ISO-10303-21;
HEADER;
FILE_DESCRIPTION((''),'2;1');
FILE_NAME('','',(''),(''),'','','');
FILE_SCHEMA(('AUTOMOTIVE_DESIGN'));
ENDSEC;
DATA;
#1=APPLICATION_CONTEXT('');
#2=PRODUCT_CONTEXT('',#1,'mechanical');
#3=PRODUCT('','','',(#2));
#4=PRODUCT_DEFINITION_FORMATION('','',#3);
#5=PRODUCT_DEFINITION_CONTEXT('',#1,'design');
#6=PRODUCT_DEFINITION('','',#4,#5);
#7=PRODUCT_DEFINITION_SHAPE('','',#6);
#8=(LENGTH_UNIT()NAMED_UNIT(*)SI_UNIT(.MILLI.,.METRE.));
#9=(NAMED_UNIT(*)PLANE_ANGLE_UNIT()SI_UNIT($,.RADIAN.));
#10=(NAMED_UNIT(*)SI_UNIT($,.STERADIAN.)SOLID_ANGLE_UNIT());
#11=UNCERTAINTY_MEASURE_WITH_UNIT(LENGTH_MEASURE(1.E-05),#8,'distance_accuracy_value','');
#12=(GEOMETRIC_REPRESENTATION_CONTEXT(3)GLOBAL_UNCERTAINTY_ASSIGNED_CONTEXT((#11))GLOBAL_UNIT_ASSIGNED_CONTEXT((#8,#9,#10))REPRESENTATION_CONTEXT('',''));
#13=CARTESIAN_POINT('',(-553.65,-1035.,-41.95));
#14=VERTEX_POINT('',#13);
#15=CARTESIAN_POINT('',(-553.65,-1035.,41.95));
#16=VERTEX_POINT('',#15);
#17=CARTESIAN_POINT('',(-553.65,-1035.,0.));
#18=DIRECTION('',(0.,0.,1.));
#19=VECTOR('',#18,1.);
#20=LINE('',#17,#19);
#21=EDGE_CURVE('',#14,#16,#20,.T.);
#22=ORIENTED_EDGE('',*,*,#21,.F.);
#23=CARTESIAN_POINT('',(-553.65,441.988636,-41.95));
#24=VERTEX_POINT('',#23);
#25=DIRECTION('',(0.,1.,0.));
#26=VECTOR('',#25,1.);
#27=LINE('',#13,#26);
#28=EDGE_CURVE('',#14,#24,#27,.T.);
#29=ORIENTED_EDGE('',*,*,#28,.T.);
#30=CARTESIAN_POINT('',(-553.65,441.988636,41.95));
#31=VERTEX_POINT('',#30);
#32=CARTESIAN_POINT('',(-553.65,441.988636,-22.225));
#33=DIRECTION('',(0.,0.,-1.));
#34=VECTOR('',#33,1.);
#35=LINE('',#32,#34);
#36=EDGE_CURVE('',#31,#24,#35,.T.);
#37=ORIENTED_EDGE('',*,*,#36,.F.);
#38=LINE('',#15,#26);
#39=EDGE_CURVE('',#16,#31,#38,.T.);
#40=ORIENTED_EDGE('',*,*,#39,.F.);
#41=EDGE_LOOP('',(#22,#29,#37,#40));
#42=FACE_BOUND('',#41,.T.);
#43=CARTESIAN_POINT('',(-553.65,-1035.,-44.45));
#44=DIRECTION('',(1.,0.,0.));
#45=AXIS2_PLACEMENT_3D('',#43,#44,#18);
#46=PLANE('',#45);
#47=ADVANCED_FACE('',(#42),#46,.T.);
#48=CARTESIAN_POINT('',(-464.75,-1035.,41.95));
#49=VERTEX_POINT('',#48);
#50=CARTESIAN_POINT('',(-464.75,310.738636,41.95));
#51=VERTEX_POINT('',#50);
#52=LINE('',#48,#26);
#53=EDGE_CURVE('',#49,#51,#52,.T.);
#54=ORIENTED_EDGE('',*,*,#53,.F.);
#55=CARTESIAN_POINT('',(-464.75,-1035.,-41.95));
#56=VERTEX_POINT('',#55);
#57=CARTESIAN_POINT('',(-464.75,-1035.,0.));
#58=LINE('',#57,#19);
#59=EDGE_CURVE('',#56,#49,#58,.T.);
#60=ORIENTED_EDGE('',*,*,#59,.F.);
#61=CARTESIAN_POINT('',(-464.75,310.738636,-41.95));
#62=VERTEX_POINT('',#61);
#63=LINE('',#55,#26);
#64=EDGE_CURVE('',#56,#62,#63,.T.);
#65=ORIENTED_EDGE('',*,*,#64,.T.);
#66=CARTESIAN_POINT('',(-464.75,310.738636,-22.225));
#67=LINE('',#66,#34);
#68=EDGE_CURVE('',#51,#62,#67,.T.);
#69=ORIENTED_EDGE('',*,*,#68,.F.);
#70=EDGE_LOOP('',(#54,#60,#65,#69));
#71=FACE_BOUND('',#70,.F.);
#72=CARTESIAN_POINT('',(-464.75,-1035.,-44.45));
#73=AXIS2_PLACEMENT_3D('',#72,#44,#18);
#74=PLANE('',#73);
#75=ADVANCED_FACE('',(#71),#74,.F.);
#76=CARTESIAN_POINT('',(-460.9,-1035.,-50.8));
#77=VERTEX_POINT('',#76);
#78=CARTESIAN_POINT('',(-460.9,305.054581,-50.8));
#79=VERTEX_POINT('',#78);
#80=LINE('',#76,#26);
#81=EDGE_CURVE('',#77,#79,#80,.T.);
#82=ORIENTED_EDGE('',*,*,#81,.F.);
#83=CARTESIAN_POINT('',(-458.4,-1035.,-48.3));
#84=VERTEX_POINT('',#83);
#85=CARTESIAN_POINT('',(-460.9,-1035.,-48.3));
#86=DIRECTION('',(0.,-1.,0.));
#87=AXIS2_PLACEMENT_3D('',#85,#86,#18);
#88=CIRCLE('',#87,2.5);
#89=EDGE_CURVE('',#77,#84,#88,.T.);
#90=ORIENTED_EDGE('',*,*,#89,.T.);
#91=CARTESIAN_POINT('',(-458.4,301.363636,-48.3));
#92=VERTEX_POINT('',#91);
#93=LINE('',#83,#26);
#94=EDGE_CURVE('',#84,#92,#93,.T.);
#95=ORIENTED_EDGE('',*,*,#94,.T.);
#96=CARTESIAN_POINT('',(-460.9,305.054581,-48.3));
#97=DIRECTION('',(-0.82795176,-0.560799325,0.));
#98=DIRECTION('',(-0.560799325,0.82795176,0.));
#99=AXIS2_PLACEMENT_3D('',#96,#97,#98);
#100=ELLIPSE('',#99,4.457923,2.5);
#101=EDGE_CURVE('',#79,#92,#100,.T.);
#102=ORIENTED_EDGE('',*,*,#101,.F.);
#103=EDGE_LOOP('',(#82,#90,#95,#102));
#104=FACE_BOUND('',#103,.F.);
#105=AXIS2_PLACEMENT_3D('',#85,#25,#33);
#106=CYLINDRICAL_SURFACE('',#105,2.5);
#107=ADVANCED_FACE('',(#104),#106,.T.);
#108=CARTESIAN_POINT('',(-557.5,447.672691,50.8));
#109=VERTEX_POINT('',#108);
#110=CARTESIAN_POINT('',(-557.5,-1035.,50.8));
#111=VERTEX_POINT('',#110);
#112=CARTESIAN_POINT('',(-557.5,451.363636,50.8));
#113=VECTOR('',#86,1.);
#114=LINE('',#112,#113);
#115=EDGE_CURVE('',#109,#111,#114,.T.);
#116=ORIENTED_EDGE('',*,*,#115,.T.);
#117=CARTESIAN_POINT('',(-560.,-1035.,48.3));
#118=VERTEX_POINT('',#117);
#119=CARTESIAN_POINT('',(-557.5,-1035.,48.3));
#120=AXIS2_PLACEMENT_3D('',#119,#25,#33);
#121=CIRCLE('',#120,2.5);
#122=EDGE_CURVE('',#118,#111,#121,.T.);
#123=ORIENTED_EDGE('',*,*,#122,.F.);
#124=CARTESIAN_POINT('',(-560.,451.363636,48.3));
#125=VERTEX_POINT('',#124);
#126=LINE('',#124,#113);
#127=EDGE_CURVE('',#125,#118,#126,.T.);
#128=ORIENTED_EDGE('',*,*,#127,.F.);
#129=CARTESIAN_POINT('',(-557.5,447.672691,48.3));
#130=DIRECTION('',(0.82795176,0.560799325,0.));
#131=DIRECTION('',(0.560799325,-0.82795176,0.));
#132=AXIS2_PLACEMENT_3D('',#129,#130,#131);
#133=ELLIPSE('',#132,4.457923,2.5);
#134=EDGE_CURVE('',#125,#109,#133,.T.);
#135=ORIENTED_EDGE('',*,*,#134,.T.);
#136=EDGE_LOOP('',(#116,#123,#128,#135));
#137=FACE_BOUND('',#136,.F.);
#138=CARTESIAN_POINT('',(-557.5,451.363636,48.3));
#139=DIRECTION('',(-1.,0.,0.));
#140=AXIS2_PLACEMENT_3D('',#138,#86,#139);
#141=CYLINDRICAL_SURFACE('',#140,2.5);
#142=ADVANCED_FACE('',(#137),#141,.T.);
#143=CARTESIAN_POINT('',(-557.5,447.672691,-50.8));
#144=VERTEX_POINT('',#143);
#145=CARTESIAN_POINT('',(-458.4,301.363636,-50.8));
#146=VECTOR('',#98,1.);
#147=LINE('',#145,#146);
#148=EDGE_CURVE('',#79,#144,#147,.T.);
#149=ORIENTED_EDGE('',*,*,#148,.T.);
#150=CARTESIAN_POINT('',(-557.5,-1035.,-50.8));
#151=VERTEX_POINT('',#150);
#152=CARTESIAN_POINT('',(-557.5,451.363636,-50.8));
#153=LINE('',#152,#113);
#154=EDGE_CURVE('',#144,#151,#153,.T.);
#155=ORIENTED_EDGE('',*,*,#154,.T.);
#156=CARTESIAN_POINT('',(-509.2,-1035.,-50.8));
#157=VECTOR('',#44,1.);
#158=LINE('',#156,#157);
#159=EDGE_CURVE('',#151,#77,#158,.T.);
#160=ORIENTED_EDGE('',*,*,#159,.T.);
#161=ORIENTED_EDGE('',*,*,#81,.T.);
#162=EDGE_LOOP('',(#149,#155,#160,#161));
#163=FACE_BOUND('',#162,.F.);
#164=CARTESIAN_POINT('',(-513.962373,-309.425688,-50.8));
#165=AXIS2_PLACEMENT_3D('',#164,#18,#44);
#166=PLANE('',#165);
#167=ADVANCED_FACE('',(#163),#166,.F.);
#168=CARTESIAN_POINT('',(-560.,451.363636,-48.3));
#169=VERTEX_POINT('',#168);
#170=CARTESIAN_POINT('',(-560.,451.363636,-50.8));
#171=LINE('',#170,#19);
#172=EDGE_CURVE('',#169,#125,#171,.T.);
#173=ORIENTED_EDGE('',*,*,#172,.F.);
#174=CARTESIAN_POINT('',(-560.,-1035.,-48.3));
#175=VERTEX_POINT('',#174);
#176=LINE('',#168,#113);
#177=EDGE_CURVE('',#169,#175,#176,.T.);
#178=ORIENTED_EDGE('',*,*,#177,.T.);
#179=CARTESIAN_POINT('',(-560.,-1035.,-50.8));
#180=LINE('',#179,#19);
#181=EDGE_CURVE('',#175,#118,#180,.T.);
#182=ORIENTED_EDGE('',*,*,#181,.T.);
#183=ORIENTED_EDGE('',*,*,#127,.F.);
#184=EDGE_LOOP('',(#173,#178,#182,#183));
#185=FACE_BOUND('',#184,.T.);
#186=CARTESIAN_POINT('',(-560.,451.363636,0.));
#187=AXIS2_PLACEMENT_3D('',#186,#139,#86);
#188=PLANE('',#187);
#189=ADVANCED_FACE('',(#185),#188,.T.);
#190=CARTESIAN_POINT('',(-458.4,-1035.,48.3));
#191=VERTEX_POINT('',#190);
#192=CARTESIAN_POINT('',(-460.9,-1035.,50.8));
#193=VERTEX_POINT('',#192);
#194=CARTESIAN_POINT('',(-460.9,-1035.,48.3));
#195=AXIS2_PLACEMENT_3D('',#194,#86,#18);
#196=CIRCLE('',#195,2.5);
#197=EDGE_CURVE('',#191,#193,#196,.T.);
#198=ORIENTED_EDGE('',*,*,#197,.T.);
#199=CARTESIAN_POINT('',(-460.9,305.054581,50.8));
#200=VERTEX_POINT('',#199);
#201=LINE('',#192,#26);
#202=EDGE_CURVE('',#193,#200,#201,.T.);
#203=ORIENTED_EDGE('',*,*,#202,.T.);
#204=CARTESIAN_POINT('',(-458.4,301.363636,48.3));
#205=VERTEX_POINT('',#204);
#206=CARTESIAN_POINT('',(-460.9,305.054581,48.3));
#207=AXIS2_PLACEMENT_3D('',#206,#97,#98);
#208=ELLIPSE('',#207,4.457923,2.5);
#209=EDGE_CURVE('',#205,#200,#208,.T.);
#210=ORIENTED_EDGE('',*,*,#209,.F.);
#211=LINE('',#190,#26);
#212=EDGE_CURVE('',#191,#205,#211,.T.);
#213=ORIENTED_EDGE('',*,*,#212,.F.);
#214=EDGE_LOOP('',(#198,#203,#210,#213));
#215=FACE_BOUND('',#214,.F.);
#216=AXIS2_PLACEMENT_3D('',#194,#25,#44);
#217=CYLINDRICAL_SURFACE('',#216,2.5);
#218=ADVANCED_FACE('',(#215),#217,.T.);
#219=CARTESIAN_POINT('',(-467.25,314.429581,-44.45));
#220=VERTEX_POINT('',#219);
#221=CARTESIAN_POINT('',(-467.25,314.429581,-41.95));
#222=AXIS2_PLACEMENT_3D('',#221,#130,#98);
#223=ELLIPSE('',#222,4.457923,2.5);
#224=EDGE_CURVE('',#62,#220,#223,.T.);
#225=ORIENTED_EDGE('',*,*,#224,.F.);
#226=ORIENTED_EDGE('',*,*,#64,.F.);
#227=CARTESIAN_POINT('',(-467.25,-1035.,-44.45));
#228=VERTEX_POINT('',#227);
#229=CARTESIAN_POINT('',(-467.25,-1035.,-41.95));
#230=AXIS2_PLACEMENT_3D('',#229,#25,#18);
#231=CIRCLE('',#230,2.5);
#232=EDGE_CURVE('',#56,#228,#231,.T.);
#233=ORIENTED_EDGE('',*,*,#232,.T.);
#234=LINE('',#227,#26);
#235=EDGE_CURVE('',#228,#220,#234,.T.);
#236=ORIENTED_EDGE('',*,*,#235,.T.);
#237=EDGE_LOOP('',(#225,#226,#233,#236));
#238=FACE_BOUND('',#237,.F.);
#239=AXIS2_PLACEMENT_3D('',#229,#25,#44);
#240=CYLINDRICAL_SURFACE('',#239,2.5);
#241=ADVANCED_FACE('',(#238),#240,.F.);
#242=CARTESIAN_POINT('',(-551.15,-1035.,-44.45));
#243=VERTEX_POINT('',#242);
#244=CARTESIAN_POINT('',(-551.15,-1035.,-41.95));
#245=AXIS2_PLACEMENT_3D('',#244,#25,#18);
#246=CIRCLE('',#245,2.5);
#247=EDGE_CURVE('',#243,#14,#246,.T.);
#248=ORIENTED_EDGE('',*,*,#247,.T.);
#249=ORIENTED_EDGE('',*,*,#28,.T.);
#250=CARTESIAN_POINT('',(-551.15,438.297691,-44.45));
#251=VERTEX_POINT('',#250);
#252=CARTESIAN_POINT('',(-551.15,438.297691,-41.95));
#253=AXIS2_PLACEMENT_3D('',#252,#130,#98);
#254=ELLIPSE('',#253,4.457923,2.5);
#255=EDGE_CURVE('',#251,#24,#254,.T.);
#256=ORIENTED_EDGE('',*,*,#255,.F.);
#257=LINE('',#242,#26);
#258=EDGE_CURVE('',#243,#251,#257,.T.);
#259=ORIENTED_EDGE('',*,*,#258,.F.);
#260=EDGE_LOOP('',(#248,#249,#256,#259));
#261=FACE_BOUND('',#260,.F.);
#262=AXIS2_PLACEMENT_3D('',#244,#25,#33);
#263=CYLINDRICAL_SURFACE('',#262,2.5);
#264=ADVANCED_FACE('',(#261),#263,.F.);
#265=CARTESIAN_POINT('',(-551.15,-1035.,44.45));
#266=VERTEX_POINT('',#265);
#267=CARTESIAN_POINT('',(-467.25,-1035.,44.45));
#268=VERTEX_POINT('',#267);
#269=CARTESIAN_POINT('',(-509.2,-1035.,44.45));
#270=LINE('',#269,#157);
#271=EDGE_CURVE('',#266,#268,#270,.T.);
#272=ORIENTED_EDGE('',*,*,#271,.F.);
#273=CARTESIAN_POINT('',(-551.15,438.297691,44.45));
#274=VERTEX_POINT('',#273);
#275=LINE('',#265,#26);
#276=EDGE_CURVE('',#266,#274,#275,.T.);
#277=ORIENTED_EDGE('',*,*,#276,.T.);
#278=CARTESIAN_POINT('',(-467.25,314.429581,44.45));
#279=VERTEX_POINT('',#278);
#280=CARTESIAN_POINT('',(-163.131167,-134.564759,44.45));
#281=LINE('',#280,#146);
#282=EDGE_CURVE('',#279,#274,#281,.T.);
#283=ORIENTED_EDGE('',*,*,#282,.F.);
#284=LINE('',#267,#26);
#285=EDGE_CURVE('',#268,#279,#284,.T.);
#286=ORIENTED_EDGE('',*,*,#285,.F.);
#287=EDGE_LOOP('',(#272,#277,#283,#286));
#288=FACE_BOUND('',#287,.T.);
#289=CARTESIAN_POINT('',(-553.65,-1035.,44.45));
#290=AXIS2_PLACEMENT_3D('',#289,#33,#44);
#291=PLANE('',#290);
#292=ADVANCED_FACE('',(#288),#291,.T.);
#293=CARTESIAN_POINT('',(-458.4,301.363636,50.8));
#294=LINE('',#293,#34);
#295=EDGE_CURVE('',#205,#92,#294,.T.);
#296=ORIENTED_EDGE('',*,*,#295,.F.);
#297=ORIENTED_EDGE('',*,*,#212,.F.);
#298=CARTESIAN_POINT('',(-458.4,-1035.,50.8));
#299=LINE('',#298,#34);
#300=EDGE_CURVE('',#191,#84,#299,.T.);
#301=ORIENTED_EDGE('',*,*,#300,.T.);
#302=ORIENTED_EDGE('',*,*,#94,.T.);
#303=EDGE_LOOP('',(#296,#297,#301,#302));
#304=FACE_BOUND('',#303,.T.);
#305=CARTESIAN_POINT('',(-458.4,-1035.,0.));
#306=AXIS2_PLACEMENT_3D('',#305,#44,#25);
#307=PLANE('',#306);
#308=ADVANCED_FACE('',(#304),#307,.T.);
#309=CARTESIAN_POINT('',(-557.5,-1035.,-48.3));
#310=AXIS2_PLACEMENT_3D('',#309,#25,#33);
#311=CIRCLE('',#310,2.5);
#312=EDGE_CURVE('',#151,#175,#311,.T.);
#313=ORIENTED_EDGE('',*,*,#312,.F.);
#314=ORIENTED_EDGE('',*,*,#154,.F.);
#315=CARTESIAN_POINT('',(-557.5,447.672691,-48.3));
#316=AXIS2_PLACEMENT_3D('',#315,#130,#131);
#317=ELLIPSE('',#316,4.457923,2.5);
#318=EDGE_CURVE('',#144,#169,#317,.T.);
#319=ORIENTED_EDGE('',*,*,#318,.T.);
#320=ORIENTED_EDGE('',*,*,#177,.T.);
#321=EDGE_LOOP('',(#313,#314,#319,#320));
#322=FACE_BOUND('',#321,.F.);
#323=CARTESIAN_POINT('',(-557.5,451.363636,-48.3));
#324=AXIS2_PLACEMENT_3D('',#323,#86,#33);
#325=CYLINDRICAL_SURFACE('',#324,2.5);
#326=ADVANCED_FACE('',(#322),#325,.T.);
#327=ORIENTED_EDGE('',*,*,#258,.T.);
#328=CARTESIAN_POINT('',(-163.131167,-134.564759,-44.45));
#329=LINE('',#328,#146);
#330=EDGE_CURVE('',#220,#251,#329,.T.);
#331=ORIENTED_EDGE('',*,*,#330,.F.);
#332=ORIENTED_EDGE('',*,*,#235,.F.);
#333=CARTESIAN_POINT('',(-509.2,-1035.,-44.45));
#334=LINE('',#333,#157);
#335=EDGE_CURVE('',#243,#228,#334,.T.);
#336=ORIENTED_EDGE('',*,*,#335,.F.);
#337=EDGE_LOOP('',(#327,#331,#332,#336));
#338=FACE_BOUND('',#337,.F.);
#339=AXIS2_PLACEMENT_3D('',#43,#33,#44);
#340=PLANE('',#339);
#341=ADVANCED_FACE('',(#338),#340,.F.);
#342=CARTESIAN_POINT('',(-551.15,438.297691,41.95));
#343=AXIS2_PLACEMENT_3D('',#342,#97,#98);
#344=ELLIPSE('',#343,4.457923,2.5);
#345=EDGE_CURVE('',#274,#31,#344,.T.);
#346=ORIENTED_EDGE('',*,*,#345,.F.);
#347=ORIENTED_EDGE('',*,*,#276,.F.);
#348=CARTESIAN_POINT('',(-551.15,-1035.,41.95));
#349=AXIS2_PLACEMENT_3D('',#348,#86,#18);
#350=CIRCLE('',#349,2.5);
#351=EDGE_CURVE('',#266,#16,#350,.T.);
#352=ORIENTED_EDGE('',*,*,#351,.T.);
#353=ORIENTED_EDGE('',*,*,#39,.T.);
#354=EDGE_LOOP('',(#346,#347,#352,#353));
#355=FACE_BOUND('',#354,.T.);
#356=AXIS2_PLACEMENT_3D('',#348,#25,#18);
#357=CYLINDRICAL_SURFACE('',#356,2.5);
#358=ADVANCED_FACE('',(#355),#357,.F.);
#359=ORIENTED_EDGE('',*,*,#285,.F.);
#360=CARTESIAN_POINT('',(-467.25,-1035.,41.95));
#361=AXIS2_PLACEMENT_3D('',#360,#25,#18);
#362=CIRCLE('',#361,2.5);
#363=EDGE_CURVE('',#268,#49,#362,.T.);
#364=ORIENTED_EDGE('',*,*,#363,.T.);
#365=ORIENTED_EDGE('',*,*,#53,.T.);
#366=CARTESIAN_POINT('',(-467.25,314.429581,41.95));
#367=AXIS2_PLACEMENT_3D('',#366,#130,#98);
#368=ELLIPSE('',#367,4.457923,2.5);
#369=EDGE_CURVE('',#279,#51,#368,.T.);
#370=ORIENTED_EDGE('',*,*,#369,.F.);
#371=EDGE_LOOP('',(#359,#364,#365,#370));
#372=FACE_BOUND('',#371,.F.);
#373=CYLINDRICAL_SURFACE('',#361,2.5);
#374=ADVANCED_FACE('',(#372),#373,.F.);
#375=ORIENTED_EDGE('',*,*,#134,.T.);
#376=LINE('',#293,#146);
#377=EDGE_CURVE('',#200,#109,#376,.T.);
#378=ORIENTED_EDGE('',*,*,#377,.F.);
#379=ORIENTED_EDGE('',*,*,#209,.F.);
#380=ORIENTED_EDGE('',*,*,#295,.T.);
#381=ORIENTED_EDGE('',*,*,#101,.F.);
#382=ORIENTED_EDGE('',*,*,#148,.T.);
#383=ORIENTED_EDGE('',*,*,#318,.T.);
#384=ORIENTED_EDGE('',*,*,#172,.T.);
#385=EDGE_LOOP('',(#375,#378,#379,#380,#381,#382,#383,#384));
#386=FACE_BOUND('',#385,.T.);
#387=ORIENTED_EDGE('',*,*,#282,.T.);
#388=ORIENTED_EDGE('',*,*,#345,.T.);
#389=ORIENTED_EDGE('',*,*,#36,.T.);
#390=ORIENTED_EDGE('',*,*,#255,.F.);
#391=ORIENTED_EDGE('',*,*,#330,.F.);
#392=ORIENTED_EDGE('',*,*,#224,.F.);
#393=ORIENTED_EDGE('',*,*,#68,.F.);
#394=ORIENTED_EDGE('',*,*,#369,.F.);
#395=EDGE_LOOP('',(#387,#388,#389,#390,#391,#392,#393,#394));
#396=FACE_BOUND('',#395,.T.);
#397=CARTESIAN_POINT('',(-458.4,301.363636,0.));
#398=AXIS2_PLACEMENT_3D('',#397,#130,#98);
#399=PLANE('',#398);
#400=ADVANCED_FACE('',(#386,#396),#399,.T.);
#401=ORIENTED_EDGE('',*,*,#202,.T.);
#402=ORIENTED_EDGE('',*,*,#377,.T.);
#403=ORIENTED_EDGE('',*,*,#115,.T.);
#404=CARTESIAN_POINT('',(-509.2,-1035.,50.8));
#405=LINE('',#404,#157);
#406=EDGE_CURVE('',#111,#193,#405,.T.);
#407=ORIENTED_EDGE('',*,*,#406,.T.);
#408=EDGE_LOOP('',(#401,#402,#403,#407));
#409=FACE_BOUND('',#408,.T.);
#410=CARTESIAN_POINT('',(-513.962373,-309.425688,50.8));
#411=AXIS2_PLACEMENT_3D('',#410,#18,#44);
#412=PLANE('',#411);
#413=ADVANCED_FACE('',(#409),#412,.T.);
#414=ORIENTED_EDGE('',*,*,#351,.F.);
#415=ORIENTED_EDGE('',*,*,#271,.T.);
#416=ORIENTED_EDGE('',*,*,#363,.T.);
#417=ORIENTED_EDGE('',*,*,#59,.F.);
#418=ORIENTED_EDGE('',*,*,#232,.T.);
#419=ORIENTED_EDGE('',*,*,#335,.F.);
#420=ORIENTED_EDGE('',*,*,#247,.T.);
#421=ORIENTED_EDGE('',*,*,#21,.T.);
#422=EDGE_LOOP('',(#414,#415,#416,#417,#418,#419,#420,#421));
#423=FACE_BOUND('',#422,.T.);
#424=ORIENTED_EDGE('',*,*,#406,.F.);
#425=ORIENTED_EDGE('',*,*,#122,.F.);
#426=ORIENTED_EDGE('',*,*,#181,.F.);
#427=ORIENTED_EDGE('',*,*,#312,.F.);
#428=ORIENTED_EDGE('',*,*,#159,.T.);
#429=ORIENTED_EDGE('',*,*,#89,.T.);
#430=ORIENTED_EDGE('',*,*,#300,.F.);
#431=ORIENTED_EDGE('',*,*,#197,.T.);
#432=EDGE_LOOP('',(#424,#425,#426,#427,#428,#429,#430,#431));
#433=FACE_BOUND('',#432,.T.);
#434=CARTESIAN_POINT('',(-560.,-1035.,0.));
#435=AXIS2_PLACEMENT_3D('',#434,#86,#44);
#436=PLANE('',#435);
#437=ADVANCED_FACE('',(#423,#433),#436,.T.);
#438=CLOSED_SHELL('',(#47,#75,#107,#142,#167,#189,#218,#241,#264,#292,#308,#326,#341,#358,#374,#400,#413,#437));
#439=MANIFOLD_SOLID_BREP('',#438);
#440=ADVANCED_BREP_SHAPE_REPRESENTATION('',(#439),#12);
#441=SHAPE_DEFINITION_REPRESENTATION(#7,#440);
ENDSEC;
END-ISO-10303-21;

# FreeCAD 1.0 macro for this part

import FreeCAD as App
import Part
import Sketcher

V = App.Vector
Q = App.Units.Quantity


def edges_at(feature, points):
    """Names of the edges that pass closest to the given points."""
    edges = feature.Shape.Edges
    near = lambda p: min(range(len(edges)), key=lambda i: edges[i].distToShape(Part.Vertex(*p))[0])
    return sorted({f"Edge{near(p) + 1}" for p in points})

doc = App.newDocument("Part")
body = doc.addObject("PartDesign::Body", "Body")

# Sketch on XY plane
sketch1 = body.newObject("Sketcher::SketchObject", "Sketch")
sketch1.AttachmentSupport = (doc.getObject("XY_Plane"), [""])
sketch1.MapMode = "FlatFace"
sketch1.addGeometry(Part.LineSegment(V(-458.4, 301.363636, 0), V(-560, 451.363636, 0)), False)
sketch1.addGeometry(Part.LineSegment(V(-560, 451.363636, 0), V(-560, -1035, 0)), False)
sketch1.addGeometry(Part.LineSegment(V(-560, -1035, 0), V(-458.4, -1035, 0)), False)
sketch1.addGeometry(Part.LineSegment(V(-458.4, -1035, 0), V(-458.4, 301.363636, 0)), False)
sketch1.addConstraint(Sketcher.Constraint("Coincident", 0, 2, 1, 1))
sketch1.addConstraint(Sketcher.Constraint("Coincident", 1, 2, 2, 1))
sketch1.addConstraint(Sketcher.Constraint("Coincident", 2, 2, 3, 1))
sketch1.addConstraint(Sketcher.Constraint("Coincident", 3, 2, 0, 1))
sketch1.addConstraint(Sketcher.Constraint("Vertical", 1))
sketch1.addConstraint(Sketcher.Constraint("Horizontal", 2))
sketch1.addConstraint(Sketcher.Constraint("Vertical", 3))
sketch1.addConstraint(Sketcher.Constraint("DistanceX", 2, 1, 2, 2, Q("4 in")))
sketch1.addConstraint(Sketcher.Constraint("DistanceX", 0, 2, -1, 1, 560.0))
sketch1.addConstraint(Sketcher.Constraint("DistanceY", 1, 2, -1, 1, 1035.0))
sketch1.addConstraint(Sketcher.Constraint("DistanceY", 3, 2, 0, 2, 150.0))
sketch1.addConstraint(Sketcher.Constraint("DistanceY", 1, 2, 1, 1, 1486.363636))
pad1 = body.newObject("PartDesign::Pad", "Pad")
pad1.Profile = sketch1
pad1.Length = Q("4 in")
pad1.Midplane = True

# Sketch on XZ plane
sketch2 = body.newObject("Sketcher::SketchObject", "Sketch001")
sketch2.AttachmentSupport = (doc.getObject("XZ_Plane"), [""])
sketch2.MapMode = "FlatFace"
sketch2.AttachmentOffset = App.Placement(V(0, 0, 1035), App.Rotation())
sketch2.addGeometry(Part.LineSegment(V(-553.65, 44.45, 0), V(-553.65, -44.45, 0)), False)
sketch2.addGeometry(Part.LineSegment(V(-553.65, -44.45, 0), V(-464.75, -44.45, 0)), False)
sketch2.addGeometry(Part.LineSegment(V(-464.75, -44.45, 0), V(-464.75, 44.45, 0)), False)
sketch2.addGeometry(Part.LineSegment(V(-464.75, 44.45, 0), V(-553.65, 44.45, 0)), False)
sketch2.addConstraint(Sketcher.Constraint("Coincident", 0, 2, 1, 1))
sketch2.addConstraint(Sketcher.Constraint("Coincident", 1, 2, 2, 1))
sketch2.addConstraint(Sketcher.Constraint("Coincident", 2, 2, 3, 1))
sketch2.addConstraint(Sketcher.Constraint("Coincident", 3, 2, 0, 1))
sketch2.addConstraint(Sketcher.Constraint("Vertical", 0))
sketch2.addConstraint(Sketcher.Constraint("Horizontal", 1))
sketch2.addConstraint(Sketcher.Constraint("Vertical", 2))
sketch2.addConstraint(Sketcher.Constraint("Horizontal", 3))
sketch2.addConstraint(Sketcher.Constraint("Equal", 3, 0))
sketch2.addConstraint(Sketcher.Constraint("DistanceX", 1, 1, 1, 2, Q("3.5 in")))
sketch2.addConstraint(Sketcher.Constraint("DistanceY", 0, 2, -1, 1, Q("1.75 in")))
sketch2.addConstraint(Sketcher.Constraint("DistanceX", 0, 2, -1, 1, 553.65))
pocket1 = body.newObject("PartDesign::Pocket", "Pocket")
pocket1.Profile = sketch2
pocket1.Type = "ThroughAll"
doc.recompute()

fillet = body.newObject("PartDesign::Fillet", "Fillet")
fillet.Base = (pocket1, edges_at(pocket1, [
    (-553.65, -296.506, -44.45),
    (-464.75, -362.131, -44.45),
    (-464.75, -362.131, 44.45),
    (-553.65, -296.506, 44.45),
    (-458.4, -366.818, 50.8),
    (-458.4, -366.818, -50.8),
    (-560, -291.818, -50.8),
    (-560, -291.818, 50.8),
]))
fillet.Radius = 2.5

doc.recompute()
